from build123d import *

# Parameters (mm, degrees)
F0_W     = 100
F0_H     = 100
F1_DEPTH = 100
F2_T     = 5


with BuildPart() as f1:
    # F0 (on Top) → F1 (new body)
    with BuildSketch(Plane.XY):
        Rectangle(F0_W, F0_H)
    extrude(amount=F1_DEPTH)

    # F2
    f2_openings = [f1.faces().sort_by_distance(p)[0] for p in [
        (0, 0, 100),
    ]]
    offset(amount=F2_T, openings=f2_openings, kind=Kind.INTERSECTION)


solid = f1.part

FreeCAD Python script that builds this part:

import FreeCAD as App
import Part
import Sketcher

V = App.Vector
Q = App.Units.Quantity


def faces_at(feature, points):
    """Names of the faces that lie closest to the given points."""
    faces = feature.Shape.Faces
    near = lambda p: min(range(len(faces)), key=lambda i: faces[i].distToShape(Part.Vertex(*p))[0])
    return sorted({f"Face{near(p) + 1}" for p in points})


def add_polygon(sketch, points):
    """Adds a closed chain of lines whose ends are joined by coincident constraints."""
    first, n = sketch.GeometryCount, len(points)
    for a, b in zip(points, points[1:] + points[:1]):
        sketch.addGeometry(Part.LineSegment(App.Vector(*a, 0), App.Vector(*b, 0)), False)
    for i in range(n):
        sketch.addConstraint(Sketcher.Constraint("Coincident", first + i, 2, first + (i + 1) % n, 1))

doc = App.newDocument("Part")
body = doc.addObject("PartDesign::Body", "Body")

# Sketch on XY plane
sketch1 = doc.addObject("Sketcher::SketchObject", "Sketch")
body.addObject(sketch1)
sketch1.AttachmentSupport = (doc.XY_Plane, [""])
sketch1.MapMode = "FlatFace"
add_polygon(sketch1, [(-50, 50), (-50, -50), (50, -50), (50, 50)])  # lines 0-3
sketch1.addConstraint(Sketcher.Constraint("Vertical", 0))
sketch1.addConstraint(Sketcher.Constraint("Horizontal", 1))
sketch1.addConstraint(Sketcher.Constraint("Vertical", 2))
sketch1.addConstraint(Sketcher.Constraint("Horizontal", 3))
sketch1.addConstraint(Sketcher.Constraint("Symmetric", 0, 2, 2, 2, -1, 1))
sketch1.addConstraint(Sketcher.Constraint("Equal", 3, 0))
sketch1.addConstraint(Sketcher.Constraint("DistanceX", 1, 1, 1, 2, Q("100 mm")))
pad1 = doc.addObject("PartDesign::Pad", "Pad")
body.addObject(pad1)
pad1.Profile = sketch1
pad1.Length = 100
doc.recompute()

thickness = doc.addObject("PartDesign::Thickness", "Thickness")
body.addObject(thickness)
thickness.Base = (pad1, faces_at(pad1, [(0, 0, 100)]))
thickness.Value = 5
thickness.Reversed = False
thickness.Join = "Intersection"

doc.recompute()
